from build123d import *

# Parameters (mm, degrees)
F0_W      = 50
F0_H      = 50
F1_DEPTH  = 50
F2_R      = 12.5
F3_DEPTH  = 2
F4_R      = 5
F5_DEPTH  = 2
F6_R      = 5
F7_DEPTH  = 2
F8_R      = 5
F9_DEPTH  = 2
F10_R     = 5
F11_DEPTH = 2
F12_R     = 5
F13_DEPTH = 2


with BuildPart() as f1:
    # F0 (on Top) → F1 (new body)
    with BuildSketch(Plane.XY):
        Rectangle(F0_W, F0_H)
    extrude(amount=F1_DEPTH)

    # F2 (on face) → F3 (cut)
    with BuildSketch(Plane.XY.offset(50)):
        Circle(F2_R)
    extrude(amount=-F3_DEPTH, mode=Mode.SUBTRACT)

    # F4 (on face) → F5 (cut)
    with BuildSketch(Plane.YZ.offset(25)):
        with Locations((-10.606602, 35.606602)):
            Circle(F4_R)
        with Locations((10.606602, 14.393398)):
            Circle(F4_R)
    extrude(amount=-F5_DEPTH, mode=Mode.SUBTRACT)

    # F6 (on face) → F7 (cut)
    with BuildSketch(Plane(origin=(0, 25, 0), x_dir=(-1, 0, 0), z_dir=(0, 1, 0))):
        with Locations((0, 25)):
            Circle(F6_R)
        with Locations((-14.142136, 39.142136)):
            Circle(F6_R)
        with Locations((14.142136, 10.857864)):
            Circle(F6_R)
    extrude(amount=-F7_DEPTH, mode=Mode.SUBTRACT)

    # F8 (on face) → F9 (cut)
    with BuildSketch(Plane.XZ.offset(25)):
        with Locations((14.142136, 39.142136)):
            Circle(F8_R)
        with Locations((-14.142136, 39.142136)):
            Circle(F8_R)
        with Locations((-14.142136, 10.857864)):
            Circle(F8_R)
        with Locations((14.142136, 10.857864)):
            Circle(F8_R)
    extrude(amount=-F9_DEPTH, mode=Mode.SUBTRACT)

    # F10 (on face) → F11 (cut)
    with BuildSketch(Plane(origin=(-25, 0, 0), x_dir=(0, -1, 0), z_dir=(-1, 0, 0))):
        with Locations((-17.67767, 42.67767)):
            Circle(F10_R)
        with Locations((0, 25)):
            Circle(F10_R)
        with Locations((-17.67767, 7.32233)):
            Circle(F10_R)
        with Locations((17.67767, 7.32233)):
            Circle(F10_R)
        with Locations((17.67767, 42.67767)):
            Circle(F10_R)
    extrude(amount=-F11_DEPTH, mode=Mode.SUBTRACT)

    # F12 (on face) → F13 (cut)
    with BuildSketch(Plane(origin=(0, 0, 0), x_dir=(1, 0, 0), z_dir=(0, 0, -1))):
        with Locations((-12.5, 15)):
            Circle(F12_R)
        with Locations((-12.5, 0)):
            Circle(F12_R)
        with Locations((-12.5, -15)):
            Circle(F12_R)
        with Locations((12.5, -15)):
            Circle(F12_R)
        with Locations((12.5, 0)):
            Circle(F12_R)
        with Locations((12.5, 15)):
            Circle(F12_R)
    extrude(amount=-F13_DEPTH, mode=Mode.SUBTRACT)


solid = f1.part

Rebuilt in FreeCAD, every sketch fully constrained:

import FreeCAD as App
import Part
import Sketcher
Q = App.Units.Quantity

doc = App.newDocument("Part")
body = doc.addObject("PartDesign::Body", "Body")

sketch1 = body.newObject("Sketcher::SketchObject", "Sketch")
sketch1.AttachmentSupport = (doc.getObject("XY_Plane"), [""])
sketch1.MapMode = "FlatFace"
sketch1.addGeometry([
    Part.LineSegment(App.Vector(-25, 25, 0), App.Vector(-25, -25, 0)),
    Part.LineSegment(App.Vector(-25, -25, 0), App.Vector(25, -25, 0)),
    Part.LineSegment(App.Vector(25, -25, 0), App.Vector(25, 25, 0)),
    Part.LineSegment(App.Vector(25, 25, 0), App.Vector(-25, 25, 0)),
], False)
sketch1.addConstraint([
    Sketcher.Constraint("Coincident", 0, 2, 1, 1),
    Sketcher.Constraint("Coincident", 1, 2, 2, 1),
    Sketcher.Constraint("Coincident", 2, 2, 3, 1),
    Sketcher.Constraint("Coincident", 3, 2, 0, 1),
    Sketcher.Constraint("Vertical", 0),
    Sketcher.Constraint("Horizontal", 1),
    Sketcher.Constraint("Vertical", 2),
    Sketcher.Constraint("Horizontal", 3),
    Sketcher.Constraint("Symmetric", 0, 2, 2, 2, -1, 1),
    Sketcher.Constraint("Equal", 3, 0),
    Sketcher.Constraint("DistanceX", 1, 1, 1, 2, Q("50 mm")),
])
pad1 = body.newObject("PartDesign::Pad", "Pad")
pad1.Profile = sketch1
pad1.Length = 50

sketch2 = body.newObject("Sketcher::SketchObject", "Sketch001")
sketch2.AttachmentSupport = (doc.getObject("XY_Plane"), [""])
sketch2.MapMode = "FlatFace"
sketch2.AttachmentOffset = App.Placement(App.Vector(0, 0, 50), App.Rotation())
sketch2.addGeometry(Part.Circle(App.Vector(0, 0, 0), App.Vector(0, 0, 1), 12), False)
sketch2.addConstraint([
    Sketcher.Constraint("Coincident", 0, 3, -1, 1),
    Sketcher.Constraint("Diameter", 0, Q("25 mm")),
])
pocket1 = body.newObject("PartDesign::Pocket", "Pocket")
pocket1.Profile = sketch2
pocket1.Length = 2

sketch3 = body.newObject("Sketcher::SketchObject", "Sketch002")
sketch3.AttachmentSupport = (doc.getObject("YZ_Plane"), [""])
sketch3.MapMode = "FlatFace"
sketch3.AttachmentOffset = App.Placement(App.Vector(0, 0, 25), App.Rotation())
sketch3.addGeometry([
    Part.Circle(App.Vector(-11, 36, 0), App.Vector(0, 0, 1), 5),
    Part.Circle(App.Vector(11, 14, 0), App.Vector(0, 0, 1), 5),
], False)
sketch3.addConstraint([
    Sketcher.Constraint("Equal", 0, 1),
    Sketcher.Constraint("Diameter", 0, Q("10 mm")),
    Sketcher.Constraint("DistanceX", 0, 3, -1, 1, Q("10.606602 mm")),
    Sketcher.Constraint("DistanceY", -1, 1, 0, 3, Q("35.606602 mm")),
    Sketcher.Constraint("DistanceX", -1, 1, 1, 3, Q("10.606602 mm")),
    Sketcher.Constraint("DistanceY", -1, 1, 1, 3, Q("14.393398 mm")),
])
pocket2 = body.newObject("PartDesign::Pocket", "Pocket001")
pocket2.Profile = sketch3
pocket2.Length = 2

sketch4 = body.newObject("Sketcher::SketchObject", "Sketch003")
sketch4.AttachmentSupport = (doc.getObject("XZ_Plane"), [""])
sketch4.MapMode = "FlatFace"
sketch4.AttachmentOffset = App.Placement(App.Vector(0, 0, -25), App.Rotation())
sketch4.addGeometry([
    Part.Circle(App.Vector(0, 25, 0), App.Vector(0, 0, 1), 5),
    Part.Circle(App.Vector(14, 39, 0), App.Vector(0, 0, 1), 5),
    Part.Circle(App.Vector(-14, 11, 0), App.Vector(0, 0, 1), 5),
], False)
sketch4.addConstraint([
    Sketcher.Constraint("Equal", 0, 1),
    Sketcher.Constraint("Equal", 1, 2),
    Sketcher.Constraint("PointOnObject", 0, 3, -2),
    Sketcher.Constraint("Diameter", 0, Q("10 mm")),
    Sketcher.Constraint("DistanceY", -1, 1, 0, 3, Q("25 mm")),
    Sketcher.Constraint("DistanceX", -1, 1, 1, 3, Q("14.142136 mm")),
    Sketcher.Constraint("DistanceY", -1, 1, 1, 3, Q("39.142136 mm")),
    Sketcher.Constraint("DistanceX", 2, 3, -1, 1, Q("14.142136 mm")),
    Sketcher.Constraint("DistanceY", -1, 1, 2, 3, Q("10.857864 mm")),
])
pocket3 = body.newObject("PartDesign::Pocket", "Pocket002")
pocket3.Profile = sketch4
pocket3.Length = 2
pocket3.Reversed = True

sketch5 = body.newObject("Sketcher::SketchObject", "Sketch004")
sketch5.AttachmentSupport = (doc.getObject("XZ_Plane"), [""])
sketch5.MapMode = "FlatFace"
sketch5.AttachmentOffset = App.Placement(App.Vector(0, 0, 25), App.Rotation())
sketch5.addGeometry([
    Part.Circle(App.Vector(14, 39, 0), App.Vector(0, 0, 1), 5),
    Part.Circle(App.Vector(-14, 39, 0), App.Vector(0, 0, 1), 5),
    Part.Circle(App.Vector(-14, 11, 0), App.Vector(0, 0, 1), 5),
    Part.Circle(App.Vector(14, 11, 0), App.Vector(0, 0, 1), 5),
], False)
sketch5.addConstraint([
    Sketcher.Constraint("Equal", 0, 1),
    Sketcher.Constraint("Equal", 1, 2),
    Sketcher.Constraint("Equal", 2, 3),
    Sketcher.Constraint("Symmetric", 0, 3, 1, 3, -2),
    Sketcher.Constraint("Symmetric", 2, 3, 3, 3, -2),
    Sketcher.Constraint("Vertical", 1, 3, 2, 3),
    Sketcher.Constraint("Diameter", 0, Q("10 mm")),
    Sketcher.Constraint("DistanceX", -1, 1, 0, 3, Q("14.142136 mm")),
    Sketcher.Constraint("DistanceY", -1, 1, 0, 3, Q("39.142136 mm")),
    Sketcher.Constraint("DistanceY", -1, 1, 2, 3, Q("10.857864 mm")),
])
pocket4 = body.newObject("PartDesign::Pocket", "Pocket003")
pocket4.Profile = sketch5
pocket4.Length = 2

sketch6 = body.newObject("Sketcher::SketchObject", "Sketch005")
sketch6.AttachmentSupport = (doc.getObject("YZ_Plane"), [""])
sketch6.MapMode = "FlatFace"
sketch6.AttachmentOffset = App.Placement(App.Vector(0, 0, -25), App.Rotation())
sketch6.addGeometry([
    Part.Circle(App.Vector(18, 43, 0), App.Vector(0, 0, 1), 5),
    Part.Circle(App.Vector(0, 25, 0), App.Vector(0, 0, 1), 5),
    Part.Circle(App.Vector(18, 7, 0), App.Vector(0, 0, 1), 5),
    Part.Circle(App.Vector(-18, 7, 0), App.Vector(0, 0, 1), 5),
    Part.Circle(App.Vector(-18, 43, 0), App.Vector(0, 0, 1), 5),
], False)
sketch6.addConstraint([
    Sketcher.Constraint("Equal", 0, 1),
    Sketcher.Constraint("Equal", 1, 2),
    Sketcher.Constraint("Equal", 2, 3),
    Sketcher.Constraint("Equal", 3, 4),
    Sketcher.Constraint("Symmetric", 2, 3, 3, 3, -2),
    Sketcher.Constraint("Symmetric", 0, 3, 4, 3, -2),
    Sketcher.Constraint("PointOnObject", 1, 3, -2),
    Sketcher.Constraint("Vertical", 0, 3, 2, 3),
    Sketcher.Constraint("Diameter", 0, Q("10 mm")),
    Sketcher.Constraint("DistanceY", -1, 1, 1, 3, Q("25 mm")),
    Sketcher.Constraint("DistanceX", -1, 1, 0, 3, Q("17.67767 mm")),
    Sketcher.Constraint("DistanceY", -1, 1, 0, 3, Q("42.67767 mm")),
    Sketcher.Constraint("DistanceY", -1, 1, 2, 3, Q("7.32233 mm")),
])
pocket5 = body.newObject("PartDesign::Pocket", "Pocket004")
pocket5.Profile = sketch6
pocket5.Length = 2
pocket5.Reversed = True

sketch7 = body.newObject("Sketcher::SketchObject", "Sketch006")
sketch7.AttachmentSupport = (doc.getObject("XY_Plane"), [""])
sketch7.MapMode = "FlatFace"
sketch7.addGeometry([
    Part.Circle(App.Vector(-12, -15, 0), App.Vector(0, 0, 1), 5),
    Part.Circle(App.Vector(-12, 0, 0), App.Vector(0, 0, 1), 5),
    Part.Circle(App.Vector(-12, 15, 0), App.Vector(0, 0, 1), 5),
    Part.Circle(App.Vector(12, 15, 0), App.Vector(0, 0, 1), 5),
    Part.Circle(App.Vector(12, 0, 0), App.Vector(0, 0, 1), 5),
    Part.Circle(App.Vector(12, -15, 0), App.Vector(0, 0, 1), 5),
], False)
sketch7.addConstraint([
    Sketcher.Constraint("Equal", 0, 1),
    Sketcher.Constraint("Equal", 1, 2),
    Sketcher.Constraint("Equal", 2, 3),
    Sketcher.Constraint("Equal", 3, 4),
    Sketcher.Constraint("Equal", 4, 5),
    Sketcher.Constraint("Symmetric", 0, 3, 3, 3, -1, 1),
    Sketcher.Constraint("Symmetric", 1, 3, 4, 3, -1, 1),
    Sketcher.Constraint("Symmetric", 2, 3, 5, 3, -1, 1),
    Sketcher.Constraint("Symmetric", 2, 3, 3, 3, -2),
    Sketcher.Constraint("PointOnObject", 1, 3, -1),
    Sketcher.Constraint("Vertical", 0, 3, 1, 3),
    Sketcher.Constraint("Diameter", 0, Q("10 mm")),
    Sketcher.Constraint("DistanceY", 0, 3, -1, 1, Q("15 mm")),
    Sketcher.Constraint("DistanceX", 2, 3, 3, 3, Q("25 mm")),
])
pocket6 = body.newObject("PartDesign::Pocket", "Pocket005")
pocket6.Profile = sketch7
pocket6.Length = 2
pocket6.Reversed = True

doc.recompute()
